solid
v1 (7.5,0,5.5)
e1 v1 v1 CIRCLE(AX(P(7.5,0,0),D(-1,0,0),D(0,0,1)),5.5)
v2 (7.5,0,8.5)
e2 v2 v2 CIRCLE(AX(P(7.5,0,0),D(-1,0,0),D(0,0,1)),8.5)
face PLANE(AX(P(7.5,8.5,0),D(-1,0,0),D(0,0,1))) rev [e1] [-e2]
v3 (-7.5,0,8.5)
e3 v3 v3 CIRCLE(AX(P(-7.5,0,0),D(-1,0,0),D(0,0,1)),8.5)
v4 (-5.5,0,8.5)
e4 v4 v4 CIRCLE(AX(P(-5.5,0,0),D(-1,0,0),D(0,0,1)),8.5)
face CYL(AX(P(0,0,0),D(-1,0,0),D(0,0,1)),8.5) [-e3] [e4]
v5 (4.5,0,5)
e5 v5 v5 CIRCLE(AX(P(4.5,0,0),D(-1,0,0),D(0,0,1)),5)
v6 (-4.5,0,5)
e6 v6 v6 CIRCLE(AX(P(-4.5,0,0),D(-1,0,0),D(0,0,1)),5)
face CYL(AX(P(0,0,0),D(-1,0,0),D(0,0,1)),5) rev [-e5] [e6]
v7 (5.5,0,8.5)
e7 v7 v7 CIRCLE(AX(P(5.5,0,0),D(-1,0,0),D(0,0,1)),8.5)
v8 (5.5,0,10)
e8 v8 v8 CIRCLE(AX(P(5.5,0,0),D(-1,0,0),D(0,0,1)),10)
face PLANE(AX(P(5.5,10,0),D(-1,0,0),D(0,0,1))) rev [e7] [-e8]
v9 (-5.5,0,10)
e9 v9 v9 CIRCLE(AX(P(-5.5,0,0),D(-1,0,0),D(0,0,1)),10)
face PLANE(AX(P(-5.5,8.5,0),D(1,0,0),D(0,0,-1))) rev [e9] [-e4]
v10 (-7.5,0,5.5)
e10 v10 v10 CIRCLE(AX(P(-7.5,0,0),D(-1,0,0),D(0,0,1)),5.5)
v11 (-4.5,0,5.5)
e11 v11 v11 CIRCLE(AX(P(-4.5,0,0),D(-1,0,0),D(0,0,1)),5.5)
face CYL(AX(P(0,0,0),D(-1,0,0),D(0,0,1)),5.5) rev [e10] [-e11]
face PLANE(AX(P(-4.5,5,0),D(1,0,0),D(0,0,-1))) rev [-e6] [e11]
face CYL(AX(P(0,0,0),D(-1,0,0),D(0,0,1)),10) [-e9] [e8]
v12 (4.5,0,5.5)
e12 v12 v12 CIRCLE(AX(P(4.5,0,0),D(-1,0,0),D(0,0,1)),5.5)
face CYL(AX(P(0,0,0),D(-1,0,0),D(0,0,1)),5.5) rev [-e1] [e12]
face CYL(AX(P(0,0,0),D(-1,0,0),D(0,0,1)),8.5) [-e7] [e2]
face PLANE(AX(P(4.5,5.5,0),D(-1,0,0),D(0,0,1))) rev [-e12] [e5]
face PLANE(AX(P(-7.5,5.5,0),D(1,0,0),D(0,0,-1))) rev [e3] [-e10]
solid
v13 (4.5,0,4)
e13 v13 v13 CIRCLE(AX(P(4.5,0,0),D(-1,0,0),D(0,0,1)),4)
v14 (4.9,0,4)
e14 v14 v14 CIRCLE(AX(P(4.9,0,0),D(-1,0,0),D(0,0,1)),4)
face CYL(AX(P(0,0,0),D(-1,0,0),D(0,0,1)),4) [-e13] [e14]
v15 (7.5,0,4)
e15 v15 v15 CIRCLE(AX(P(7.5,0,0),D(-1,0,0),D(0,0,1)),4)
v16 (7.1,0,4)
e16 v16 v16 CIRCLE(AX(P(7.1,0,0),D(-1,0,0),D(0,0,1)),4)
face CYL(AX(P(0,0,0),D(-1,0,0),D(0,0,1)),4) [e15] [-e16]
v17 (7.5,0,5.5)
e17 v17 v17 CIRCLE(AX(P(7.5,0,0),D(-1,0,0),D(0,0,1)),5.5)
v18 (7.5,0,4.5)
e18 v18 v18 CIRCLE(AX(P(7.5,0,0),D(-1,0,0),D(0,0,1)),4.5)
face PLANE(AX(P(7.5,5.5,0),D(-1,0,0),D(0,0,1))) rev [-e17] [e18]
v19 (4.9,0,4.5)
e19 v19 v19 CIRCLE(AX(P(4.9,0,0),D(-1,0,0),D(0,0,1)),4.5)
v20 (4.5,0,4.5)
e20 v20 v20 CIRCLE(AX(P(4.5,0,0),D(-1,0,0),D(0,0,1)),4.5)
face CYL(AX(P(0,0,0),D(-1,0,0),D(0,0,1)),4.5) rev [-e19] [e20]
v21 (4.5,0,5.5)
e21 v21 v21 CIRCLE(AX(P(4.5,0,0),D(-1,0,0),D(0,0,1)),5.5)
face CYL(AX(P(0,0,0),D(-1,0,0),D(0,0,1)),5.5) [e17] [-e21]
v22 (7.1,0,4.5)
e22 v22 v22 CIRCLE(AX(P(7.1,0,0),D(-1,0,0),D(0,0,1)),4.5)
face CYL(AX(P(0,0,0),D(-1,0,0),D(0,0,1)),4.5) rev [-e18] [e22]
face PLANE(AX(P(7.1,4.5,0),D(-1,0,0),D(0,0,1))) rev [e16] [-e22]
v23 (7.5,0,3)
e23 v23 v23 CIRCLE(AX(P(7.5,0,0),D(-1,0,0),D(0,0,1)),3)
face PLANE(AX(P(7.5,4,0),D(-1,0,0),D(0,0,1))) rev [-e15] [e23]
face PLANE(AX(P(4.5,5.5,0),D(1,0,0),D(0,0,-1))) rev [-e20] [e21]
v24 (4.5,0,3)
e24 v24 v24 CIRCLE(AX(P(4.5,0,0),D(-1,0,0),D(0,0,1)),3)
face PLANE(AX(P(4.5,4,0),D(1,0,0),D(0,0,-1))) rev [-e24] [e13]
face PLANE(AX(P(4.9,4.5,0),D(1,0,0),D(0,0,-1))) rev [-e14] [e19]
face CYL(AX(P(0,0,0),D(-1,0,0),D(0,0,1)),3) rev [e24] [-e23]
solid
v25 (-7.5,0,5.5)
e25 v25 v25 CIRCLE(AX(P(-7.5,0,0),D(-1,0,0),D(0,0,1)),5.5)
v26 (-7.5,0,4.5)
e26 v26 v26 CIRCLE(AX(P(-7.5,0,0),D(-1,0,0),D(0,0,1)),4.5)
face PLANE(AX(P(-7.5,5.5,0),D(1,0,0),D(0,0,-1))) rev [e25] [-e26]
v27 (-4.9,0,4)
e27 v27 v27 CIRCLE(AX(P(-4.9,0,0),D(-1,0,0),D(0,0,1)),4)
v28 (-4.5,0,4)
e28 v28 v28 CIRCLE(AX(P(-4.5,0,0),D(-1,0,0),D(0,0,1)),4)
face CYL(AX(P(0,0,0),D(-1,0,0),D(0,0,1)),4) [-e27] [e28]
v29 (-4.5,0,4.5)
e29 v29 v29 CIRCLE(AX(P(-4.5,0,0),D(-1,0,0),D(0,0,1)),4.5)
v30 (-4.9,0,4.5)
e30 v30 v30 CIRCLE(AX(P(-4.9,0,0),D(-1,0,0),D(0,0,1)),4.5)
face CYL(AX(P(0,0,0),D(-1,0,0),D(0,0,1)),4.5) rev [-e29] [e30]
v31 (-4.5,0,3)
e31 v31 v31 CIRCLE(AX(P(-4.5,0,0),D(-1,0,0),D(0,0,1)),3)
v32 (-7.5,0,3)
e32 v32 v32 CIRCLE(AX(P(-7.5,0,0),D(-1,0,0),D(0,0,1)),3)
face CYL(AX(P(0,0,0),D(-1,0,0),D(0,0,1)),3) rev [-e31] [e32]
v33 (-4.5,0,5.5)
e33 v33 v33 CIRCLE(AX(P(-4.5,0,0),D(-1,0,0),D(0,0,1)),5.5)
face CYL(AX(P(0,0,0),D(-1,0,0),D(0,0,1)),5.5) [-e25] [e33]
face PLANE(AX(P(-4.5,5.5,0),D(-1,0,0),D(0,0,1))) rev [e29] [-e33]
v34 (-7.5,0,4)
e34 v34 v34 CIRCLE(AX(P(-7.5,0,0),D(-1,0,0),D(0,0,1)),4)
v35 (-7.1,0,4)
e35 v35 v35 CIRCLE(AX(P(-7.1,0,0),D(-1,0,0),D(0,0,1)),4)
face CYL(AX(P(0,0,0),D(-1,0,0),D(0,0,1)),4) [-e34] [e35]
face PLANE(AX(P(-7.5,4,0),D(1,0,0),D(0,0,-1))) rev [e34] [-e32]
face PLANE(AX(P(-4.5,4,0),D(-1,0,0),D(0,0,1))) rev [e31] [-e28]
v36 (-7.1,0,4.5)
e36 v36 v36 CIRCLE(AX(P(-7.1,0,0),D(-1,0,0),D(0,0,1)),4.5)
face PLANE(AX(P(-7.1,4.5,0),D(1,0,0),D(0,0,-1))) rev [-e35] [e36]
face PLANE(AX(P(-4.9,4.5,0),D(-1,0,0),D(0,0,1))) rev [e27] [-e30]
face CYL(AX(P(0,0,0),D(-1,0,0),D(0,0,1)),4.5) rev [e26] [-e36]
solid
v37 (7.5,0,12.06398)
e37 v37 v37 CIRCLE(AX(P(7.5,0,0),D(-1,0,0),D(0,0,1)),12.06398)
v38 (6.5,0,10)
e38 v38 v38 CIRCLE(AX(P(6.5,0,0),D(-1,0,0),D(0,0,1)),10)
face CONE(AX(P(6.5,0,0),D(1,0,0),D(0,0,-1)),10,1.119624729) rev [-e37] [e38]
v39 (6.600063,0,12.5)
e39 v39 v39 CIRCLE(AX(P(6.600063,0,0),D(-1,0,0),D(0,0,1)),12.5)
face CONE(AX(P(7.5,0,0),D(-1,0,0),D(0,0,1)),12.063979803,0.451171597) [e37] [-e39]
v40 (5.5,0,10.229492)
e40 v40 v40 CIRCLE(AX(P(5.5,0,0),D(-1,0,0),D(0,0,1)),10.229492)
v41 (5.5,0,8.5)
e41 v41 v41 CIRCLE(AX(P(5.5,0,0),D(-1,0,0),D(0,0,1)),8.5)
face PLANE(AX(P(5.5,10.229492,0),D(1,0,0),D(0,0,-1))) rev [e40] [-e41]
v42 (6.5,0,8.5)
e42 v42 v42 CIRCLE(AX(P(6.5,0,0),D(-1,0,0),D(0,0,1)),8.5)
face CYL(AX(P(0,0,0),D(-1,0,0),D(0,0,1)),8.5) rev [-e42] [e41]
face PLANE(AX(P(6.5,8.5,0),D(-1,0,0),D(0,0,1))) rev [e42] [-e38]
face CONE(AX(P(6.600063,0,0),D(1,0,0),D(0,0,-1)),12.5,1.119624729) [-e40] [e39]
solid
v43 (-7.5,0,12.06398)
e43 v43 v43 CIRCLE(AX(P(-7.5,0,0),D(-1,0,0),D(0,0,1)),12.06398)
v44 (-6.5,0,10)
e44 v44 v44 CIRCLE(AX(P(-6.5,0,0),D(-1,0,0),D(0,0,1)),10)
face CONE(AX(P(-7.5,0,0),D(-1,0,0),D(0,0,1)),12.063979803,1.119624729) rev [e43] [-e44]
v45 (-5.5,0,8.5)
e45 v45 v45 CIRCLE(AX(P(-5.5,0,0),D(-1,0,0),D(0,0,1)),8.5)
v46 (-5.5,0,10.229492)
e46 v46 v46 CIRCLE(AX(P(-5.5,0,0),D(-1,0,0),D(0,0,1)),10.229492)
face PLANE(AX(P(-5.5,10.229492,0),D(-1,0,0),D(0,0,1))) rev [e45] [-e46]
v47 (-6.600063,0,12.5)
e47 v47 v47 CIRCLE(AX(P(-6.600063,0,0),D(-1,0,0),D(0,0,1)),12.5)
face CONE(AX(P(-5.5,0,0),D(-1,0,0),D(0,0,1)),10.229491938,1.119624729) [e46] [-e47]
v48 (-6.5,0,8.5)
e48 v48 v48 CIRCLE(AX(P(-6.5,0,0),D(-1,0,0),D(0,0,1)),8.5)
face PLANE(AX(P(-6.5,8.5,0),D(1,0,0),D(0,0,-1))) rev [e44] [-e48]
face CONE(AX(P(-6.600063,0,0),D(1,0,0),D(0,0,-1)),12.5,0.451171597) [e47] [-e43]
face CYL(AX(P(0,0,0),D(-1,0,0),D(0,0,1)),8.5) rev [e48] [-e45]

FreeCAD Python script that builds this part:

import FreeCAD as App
import Part
import Sketcher
from FreeCAD import Vector
Q = App.Units.Quantity


def add_polygon(sketch, points):
    """Adds a closed chain of lines whose ends are joined by coincident constraints."""
    first, n = sketch.GeometryCount, len(points)
    for a, b in zip(points, points[1:] + points[:1]):
        sketch.addGeometry(Part.LineSegment(App.Vector(*a, 0), App.Vector(*b, 0)), False)
    for i in range(n):
        sketch.addConstraint(Sketcher.Constraint("Coincident", first + i, 2, first + (i + 1) % n, 1))

doc = App.newDocument("Part")
body = doc.addObject("PartDesign::Body", "Body")

sketch1 = body.newObject("Sketcher::SketchObject", "Sketch")
sketch1.AttachmentSupport = (doc.getObject("XY_Plane"), [""])
sketch1.MapMode = "FlatFace"
add_polygon(sketch1, [(5.5, 10), (-5.5, 10), (-5.5, 8.5), (-7.5, 8.5), (-7.5, 5.5), (-4.5, 5.5), (-4.5, 5), (4.5, 5), (4.5, 5.5), (7.5, 5.5), (7.5, 8.5), (5.5, 8.5)])
sketch1.addConstraint(Sketcher.Constraint("Horizontal", 0))
sketch1.addConstraint(Sketcher.Constraint("Vertical", 1))
sketch1.addConstraint(Sketcher.Constraint("Horizontal", 2))
sketch1.addConstraint(Sketcher.Constraint("Vertical", 3))
sketch1.addConstraint(Sketcher.Constraint("Horizontal", 4))
sketch1.addConstraint(Sketcher.Constraint("Vertical", 5))
sketch1.addConstraint(Sketcher.Constraint("Horizontal", 6))
sketch1.addConstraint(Sketcher.Constraint("Vertical", 7))
sketch1.addConstraint(Sketcher.Constraint("Horizontal", 8))
sketch1.addConstraint(Sketcher.Constraint("Vertical", 9))
sketch1.addConstraint(Sketcher.Constraint("Horizontal", 10))
sketch1.addConstraint(Sketcher.Constraint("Vertical", 11))
sketch1.addConstraint(Sketcher.Constraint("Symmetric", 4, 2, 7, 2, -2))
sketch1.addConstraint(Sketcher.Constraint("Symmetric", 2, 2, 9, 2, -2))
sketch1.addConstraint(Sketcher.Constraint("Equal", 2, 10))
sketch1.addConstraint(Sketcher.Constraint("Equal", 8, 3))
sketch1.addConstraint(Sketcher.Constraint("DistanceX", 0, 2, 0, 1, Q("11 mm")))
sketch1.addConstraint(Sketcher.Constraint("DistanceX", 2, 2, 2, 1, Q("2 mm")))
sketch1.addConstraint(Sketcher.Constraint("DistanceX", 4, 1, 4, 2, Q("3 mm")))
sketch1.addConstraint(Sketcher.Constraint("DistanceY", 1, 2, 1, 1, Q("1.5 mm")))
sketch1.addConstraint(Sketcher.Constraint("DistanceY", 5, 2, 5, 1, Q("0.5 mm")))
sketch1.addConstraint(Sketcher.Constraint("DistanceY", -1, 1, 0, 2, Q("10 mm")))
revolution = body.newObject("PartDesign::Revolution", "Revolution")
revolution.Profile = sketch1
revolution.ReferenceAxis = (sketch1, ["H_Axis"])
revolution.Angle = 360
body2 = doc.addObject("PartDesign::Body", "Body001")
body2.AllowCompound = True

sketch2 = body2.newObject("Sketcher::SketchObject", "Sketch001")
sketch2.AttachmentSupport = (doc.getObject("XY_Plane001"), [""])
sketch2.MapMode = "FlatFace"
add_polygon(sketch2, [(5.5, 10.2), (5.5, 8.5), (6.5, 8.5), (6.5, 10), (7.5, 12.1), (6.6, 12.5)])
add_polygon(sketch2, [(-6.5, 10), (-6.5, 8.5), (-5.5, 8.5), (-5.5, 10.2), (-6.6, 12.5), (-7.5, 12.1)])
sketch2.addConstraint(Sketcher.Constraint("Vertical", 0))
sketch2.addConstraint(Sketcher.Constraint("Horizontal", 1))
sketch2.addConstraint(Sketcher.Constraint("Vertical", 2))
sketch2.addConstraint(Sketcher.Constraint("Vertical", 6))
sketch2.addConstraint(Sketcher.Constraint("Horizontal", 7))
sketch2.addConstraint(Sketcher.Constraint("Vertical", 8))
sketch2.addConstraint(Sketcher.Constraint("Symmetric", 1, 2, 6, 2, -2))
sketch2.addConstraint(Sketcher.Constraint("Symmetric", 5, 2, 8, 2, -2))
sketch2.addConstraint(Sketcher.Constraint("Symmetric", 4, 2, 9, 2, -2))
sketch2.addConstraint(Sketcher.Constraint("Symmetric", 3, 2, 10, 2, -2))
sketch2.addConstraint(Sketcher.Constraint("Perpendicular", 3, 4))
sketch2.addConstraint(Sketcher.Constraint("Perpendicular", 4, 5))
sketch2.addConstraint(Sketcher.Constraint("Perpendicular", 10, 11))
sketch2.addConstraint(Sketcher.Constraint("DistanceX", 1, 1, 1, 2, Q("1 mm")))
sketch2.addConstraint(Sketcher.Constraint("Distance", 4, Q("1 mm")))
sketch2.addConstraint(Sketcher.Constraint("DistanceY", 2, 1, 2, 2, Q("1.5 mm")))
sketch2.addConstraint(Sketcher.Constraint("DistanceY", -1, 1, 2, 2, Q("10 mm")))
sketch2.addConstraint(Sketcher.Constraint("DistanceX", 2, 2, 3, 2, Q("1 mm")))
sketch2.addConstraint(Sketcher.Constraint("DistanceY", 1, 2, 4, 2, Q("4 mm")))
sketch2.addConstraint(Sketcher.Constraint("DistanceX", 6, 2, 0, 2, Q("12 mm")))
revolution2 = body2.newObject("PartDesign::Revolution", "Revolution001")
revolution2.Profile = sketch2
revolution2.ReferenceAxis = (sketch2, ["H_Axis"])
revolution2.Angle = 360
body3 = doc.addObject("PartDesign::Body", "Body002")
body3.AllowCompound = True

sketch3 = body3.newObject("Sketcher::SketchObject", "Sketch002")
sketch3.AttachmentSupport = (doc.getObject("XY_Plane002"), [""])
sketch3.MapMode = "FlatFace"
add_polygon(sketch3, [(7.5, 5.5), (4.5, 5.5), (4.5, 4.5), (4.9, 4.5), (4.9, 4), (4.5, 4), (4.5, 3), (7.5, 3), (7.5, 4), (7.1, 4), (7.1, 4.5), (7.5, 4.5)])
add_polygon(sketch3, [(-4.9, 4.5), (-4.5, 4.5), (-4.5, 5.5), (-7.5, 5.5), (-7.5, 4.5), (-7.1, 4.5), (-7.1, 4), (-7.5, 4), (-7.5, 3), (-4.5, 3), (-4.5, 4), (-4.9, 4)])
sketch3.addConstraint(Sketcher.Constraint("Horizontal", 0))
sketch3.addConstraint(Sketcher.Constraint("Vertical", 1))
sketch3.addConstraint(Sketcher.Constraint("Horizontal", 2))
sketch3.addConstraint(Sketcher.Constraint("Vertical", 3))
sketch3.addConstraint(Sketcher.Constraint("Horizontal", 4))
sketch3.addConstraint(Sketcher.Constraint("Vertical", 5))
sketch3.addConstraint(Sketcher.Constraint("Horizontal", 6))
sketch3.addConstraint(Sketcher.Constraint("Vertical", 7))
sketch3.addConstraint(Sketcher.Constraint("Horizontal", 8))
sketch3.addConstraint(Sketcher.Constraint("Vertical", 9))
sketch3.addConstraint(Sketcher.Constraint("Horizontal", 10))
sketch3.addConstraint(Sketcher.Constraint("Vertical", 11))
sketch3.addConstraint(Sketcher.Constraint("Horizontal", 12))
sketch3.addConstraint(Sketcher.Constraint("Vertical", 13))
sketch3.addConstraint(Sketcher.Constraint("Horizontal", 14))
sketch3.addConstraint(Sketcher.Constraint("Vertical", 15))
sketch3.addConstraint(Sketcher.Constraint("Horizontal", 16))
sketch3.addConstraint(Sketcher.Constraint("Vertical", 17))
sketch3.addConstraint(Sketcher.Constraint("Horizontal", 18))
sketch3.addConstraint(Sketcher.Constraint("Vertical", 19))
sketch3.addConstraint(Sketcher.Constraint("Horizontal", 20))
sketch3.addConstraint(Sketcher.Constraint("Vertical", 21))
sketch3.addConstraint(Sketcher.Constraint("Horizontal", 22))
sketch3.addConstraint(Sketcher.Constraint("Vertical", 23))
sketch3.addConstraint(Sketcher.Constraint("Symmetric", 1, 2, 12, 2, -2))
sketch3.addConstraint(Sketcher.Constraint("Symmetric", 11, 2, 14, 2, -2))
sketch3.addConstraint(Sketcher.Constraint("Symmetric", 9, 2, 16, 2, -2))
sketch3.addConstraint(Sketcher.Constraint("Symmetric", 7, 2, 18, 2, -2))
sketch3.addConstraint(Sketcher.Constraint("Symmetric", 5, 2, 20, 2, -2))
sketch3.addConstraint(Sketcher.Constraint("Symmetric", 3, 2, 22, 2, -2))
sketch3.addConstraint(Sketcher.Constraint("Horizontal", 4, 2, 7, 2))
sketch3.addConstraint(Sketcher.Constraint("Horizontal", 2, 2, 9, 2))
sketch3.addConstraint(Sketcher.Constraint("Vertical", 1, 2, 4, 2))
sketch3.addConstraint(Sketcher.Constraint("Vertical", 7, 2, 10, 2))
sketch3.addConstraint(Sketcher.Constraint("Equal", 4, 8))
sketch3.addConstraint(Sketcher.Constraint("Equal", 1, 5))
sketch3.addConstraint(Sketcher.Constraint("DistanceX", 0, 2, 0, 1, Q("3 mm")))
sketch3.addConstraint(Sketcher.Constraint("DistanceY", 1, 2, 1, 1, Q("1 mm")))
sketch3.addConstraint(Sketcher.Constraint("DistanceX", 2, 1, 2, 2, Q("0.4 mm")))
sketch3.addConstraint(Sketcher.Constraint("DistanceY", 3, 2, 3, 1, Q("0.5 mm")))
sketch3.addConstraint(Sketcher.Constraint("DistanceY", -1, 1, 3, 2, Q("4 mm")))
sketch3.addConstraint(Sketcher.Constraint("DistanceX", 12, 2, 1, 2, Q("9 mm")))
revolution3 = body3.newObject("PartDesign::Revolution", "Revolution002")
revolution3.Profile = sketch3
revolution3.ReferenceAxis = (sketch3, ["H_Axis"])
revolution3.Angle = 360

doc.recompute()
